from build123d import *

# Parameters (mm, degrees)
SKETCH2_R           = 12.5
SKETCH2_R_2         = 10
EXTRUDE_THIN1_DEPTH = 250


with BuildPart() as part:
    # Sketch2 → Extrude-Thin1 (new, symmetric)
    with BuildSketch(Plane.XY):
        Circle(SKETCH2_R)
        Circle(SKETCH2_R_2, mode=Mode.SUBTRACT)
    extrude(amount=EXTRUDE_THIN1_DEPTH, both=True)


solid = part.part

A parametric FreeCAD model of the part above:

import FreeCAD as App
import Part
import Sketcher
from FreeCAD import Vector

doc = App.newDocument("Part")
params = doc.addObject("Spreadsheet::Sheet", "Params")
for row, (alias, value) in enumerate([
    ("sketch1_diameter", "25 mm"),
    ("sketch1_diameter2", "20 mm"),
    ("pad1_length", "500 mm"),
], start=1):
    params.set(f"A{row}", alias)
    params.set(f"B{row}", "=" + value)
    params.setAlias(f"B{row}", alias)

body = doc.addObject("PartDesign::Body", "Body")

sketch1 = body.newObject("Sketcher::SketchObject", "Sketch")
sketch1.AttachmentSupport = (doc.getObject("XY_Plane"), [""])
sketch1.MapMode = "FlatFace"
sketch1.addGeometry([
    Part.Circle(Vector(0, 0, 0), Vector(0, 0, 1), 12),
    Part.Circle(Vector(0, 0, 0), Vector(0, 0, 1), 10),
], False)
sketch1.addConstraint([
    Sketcher.Constraint("Coincident", 0, 3, -1, 1),
    Sketcher.Constraint("Coincident", 1, 3, -1, 1),
    Sketcher.Constraint("Diameter", 0, 25.0),
    Sketcher.Constraint("Diameter", 1, 20.0),
])
sketch1.setExpression("Constraints[2]", "Params.sketch1_diameter")
sketch1.setExpression("Constraints[3]", "Params.sketch1_diameter2")
pad1 = body.newObject("PartDesign::Pad", "Pad")
pad1.Profile = sketch1
pad1.setExpression("Length", "Params.pad1_length")
pad1.Midplane = True

doc.recompute()
